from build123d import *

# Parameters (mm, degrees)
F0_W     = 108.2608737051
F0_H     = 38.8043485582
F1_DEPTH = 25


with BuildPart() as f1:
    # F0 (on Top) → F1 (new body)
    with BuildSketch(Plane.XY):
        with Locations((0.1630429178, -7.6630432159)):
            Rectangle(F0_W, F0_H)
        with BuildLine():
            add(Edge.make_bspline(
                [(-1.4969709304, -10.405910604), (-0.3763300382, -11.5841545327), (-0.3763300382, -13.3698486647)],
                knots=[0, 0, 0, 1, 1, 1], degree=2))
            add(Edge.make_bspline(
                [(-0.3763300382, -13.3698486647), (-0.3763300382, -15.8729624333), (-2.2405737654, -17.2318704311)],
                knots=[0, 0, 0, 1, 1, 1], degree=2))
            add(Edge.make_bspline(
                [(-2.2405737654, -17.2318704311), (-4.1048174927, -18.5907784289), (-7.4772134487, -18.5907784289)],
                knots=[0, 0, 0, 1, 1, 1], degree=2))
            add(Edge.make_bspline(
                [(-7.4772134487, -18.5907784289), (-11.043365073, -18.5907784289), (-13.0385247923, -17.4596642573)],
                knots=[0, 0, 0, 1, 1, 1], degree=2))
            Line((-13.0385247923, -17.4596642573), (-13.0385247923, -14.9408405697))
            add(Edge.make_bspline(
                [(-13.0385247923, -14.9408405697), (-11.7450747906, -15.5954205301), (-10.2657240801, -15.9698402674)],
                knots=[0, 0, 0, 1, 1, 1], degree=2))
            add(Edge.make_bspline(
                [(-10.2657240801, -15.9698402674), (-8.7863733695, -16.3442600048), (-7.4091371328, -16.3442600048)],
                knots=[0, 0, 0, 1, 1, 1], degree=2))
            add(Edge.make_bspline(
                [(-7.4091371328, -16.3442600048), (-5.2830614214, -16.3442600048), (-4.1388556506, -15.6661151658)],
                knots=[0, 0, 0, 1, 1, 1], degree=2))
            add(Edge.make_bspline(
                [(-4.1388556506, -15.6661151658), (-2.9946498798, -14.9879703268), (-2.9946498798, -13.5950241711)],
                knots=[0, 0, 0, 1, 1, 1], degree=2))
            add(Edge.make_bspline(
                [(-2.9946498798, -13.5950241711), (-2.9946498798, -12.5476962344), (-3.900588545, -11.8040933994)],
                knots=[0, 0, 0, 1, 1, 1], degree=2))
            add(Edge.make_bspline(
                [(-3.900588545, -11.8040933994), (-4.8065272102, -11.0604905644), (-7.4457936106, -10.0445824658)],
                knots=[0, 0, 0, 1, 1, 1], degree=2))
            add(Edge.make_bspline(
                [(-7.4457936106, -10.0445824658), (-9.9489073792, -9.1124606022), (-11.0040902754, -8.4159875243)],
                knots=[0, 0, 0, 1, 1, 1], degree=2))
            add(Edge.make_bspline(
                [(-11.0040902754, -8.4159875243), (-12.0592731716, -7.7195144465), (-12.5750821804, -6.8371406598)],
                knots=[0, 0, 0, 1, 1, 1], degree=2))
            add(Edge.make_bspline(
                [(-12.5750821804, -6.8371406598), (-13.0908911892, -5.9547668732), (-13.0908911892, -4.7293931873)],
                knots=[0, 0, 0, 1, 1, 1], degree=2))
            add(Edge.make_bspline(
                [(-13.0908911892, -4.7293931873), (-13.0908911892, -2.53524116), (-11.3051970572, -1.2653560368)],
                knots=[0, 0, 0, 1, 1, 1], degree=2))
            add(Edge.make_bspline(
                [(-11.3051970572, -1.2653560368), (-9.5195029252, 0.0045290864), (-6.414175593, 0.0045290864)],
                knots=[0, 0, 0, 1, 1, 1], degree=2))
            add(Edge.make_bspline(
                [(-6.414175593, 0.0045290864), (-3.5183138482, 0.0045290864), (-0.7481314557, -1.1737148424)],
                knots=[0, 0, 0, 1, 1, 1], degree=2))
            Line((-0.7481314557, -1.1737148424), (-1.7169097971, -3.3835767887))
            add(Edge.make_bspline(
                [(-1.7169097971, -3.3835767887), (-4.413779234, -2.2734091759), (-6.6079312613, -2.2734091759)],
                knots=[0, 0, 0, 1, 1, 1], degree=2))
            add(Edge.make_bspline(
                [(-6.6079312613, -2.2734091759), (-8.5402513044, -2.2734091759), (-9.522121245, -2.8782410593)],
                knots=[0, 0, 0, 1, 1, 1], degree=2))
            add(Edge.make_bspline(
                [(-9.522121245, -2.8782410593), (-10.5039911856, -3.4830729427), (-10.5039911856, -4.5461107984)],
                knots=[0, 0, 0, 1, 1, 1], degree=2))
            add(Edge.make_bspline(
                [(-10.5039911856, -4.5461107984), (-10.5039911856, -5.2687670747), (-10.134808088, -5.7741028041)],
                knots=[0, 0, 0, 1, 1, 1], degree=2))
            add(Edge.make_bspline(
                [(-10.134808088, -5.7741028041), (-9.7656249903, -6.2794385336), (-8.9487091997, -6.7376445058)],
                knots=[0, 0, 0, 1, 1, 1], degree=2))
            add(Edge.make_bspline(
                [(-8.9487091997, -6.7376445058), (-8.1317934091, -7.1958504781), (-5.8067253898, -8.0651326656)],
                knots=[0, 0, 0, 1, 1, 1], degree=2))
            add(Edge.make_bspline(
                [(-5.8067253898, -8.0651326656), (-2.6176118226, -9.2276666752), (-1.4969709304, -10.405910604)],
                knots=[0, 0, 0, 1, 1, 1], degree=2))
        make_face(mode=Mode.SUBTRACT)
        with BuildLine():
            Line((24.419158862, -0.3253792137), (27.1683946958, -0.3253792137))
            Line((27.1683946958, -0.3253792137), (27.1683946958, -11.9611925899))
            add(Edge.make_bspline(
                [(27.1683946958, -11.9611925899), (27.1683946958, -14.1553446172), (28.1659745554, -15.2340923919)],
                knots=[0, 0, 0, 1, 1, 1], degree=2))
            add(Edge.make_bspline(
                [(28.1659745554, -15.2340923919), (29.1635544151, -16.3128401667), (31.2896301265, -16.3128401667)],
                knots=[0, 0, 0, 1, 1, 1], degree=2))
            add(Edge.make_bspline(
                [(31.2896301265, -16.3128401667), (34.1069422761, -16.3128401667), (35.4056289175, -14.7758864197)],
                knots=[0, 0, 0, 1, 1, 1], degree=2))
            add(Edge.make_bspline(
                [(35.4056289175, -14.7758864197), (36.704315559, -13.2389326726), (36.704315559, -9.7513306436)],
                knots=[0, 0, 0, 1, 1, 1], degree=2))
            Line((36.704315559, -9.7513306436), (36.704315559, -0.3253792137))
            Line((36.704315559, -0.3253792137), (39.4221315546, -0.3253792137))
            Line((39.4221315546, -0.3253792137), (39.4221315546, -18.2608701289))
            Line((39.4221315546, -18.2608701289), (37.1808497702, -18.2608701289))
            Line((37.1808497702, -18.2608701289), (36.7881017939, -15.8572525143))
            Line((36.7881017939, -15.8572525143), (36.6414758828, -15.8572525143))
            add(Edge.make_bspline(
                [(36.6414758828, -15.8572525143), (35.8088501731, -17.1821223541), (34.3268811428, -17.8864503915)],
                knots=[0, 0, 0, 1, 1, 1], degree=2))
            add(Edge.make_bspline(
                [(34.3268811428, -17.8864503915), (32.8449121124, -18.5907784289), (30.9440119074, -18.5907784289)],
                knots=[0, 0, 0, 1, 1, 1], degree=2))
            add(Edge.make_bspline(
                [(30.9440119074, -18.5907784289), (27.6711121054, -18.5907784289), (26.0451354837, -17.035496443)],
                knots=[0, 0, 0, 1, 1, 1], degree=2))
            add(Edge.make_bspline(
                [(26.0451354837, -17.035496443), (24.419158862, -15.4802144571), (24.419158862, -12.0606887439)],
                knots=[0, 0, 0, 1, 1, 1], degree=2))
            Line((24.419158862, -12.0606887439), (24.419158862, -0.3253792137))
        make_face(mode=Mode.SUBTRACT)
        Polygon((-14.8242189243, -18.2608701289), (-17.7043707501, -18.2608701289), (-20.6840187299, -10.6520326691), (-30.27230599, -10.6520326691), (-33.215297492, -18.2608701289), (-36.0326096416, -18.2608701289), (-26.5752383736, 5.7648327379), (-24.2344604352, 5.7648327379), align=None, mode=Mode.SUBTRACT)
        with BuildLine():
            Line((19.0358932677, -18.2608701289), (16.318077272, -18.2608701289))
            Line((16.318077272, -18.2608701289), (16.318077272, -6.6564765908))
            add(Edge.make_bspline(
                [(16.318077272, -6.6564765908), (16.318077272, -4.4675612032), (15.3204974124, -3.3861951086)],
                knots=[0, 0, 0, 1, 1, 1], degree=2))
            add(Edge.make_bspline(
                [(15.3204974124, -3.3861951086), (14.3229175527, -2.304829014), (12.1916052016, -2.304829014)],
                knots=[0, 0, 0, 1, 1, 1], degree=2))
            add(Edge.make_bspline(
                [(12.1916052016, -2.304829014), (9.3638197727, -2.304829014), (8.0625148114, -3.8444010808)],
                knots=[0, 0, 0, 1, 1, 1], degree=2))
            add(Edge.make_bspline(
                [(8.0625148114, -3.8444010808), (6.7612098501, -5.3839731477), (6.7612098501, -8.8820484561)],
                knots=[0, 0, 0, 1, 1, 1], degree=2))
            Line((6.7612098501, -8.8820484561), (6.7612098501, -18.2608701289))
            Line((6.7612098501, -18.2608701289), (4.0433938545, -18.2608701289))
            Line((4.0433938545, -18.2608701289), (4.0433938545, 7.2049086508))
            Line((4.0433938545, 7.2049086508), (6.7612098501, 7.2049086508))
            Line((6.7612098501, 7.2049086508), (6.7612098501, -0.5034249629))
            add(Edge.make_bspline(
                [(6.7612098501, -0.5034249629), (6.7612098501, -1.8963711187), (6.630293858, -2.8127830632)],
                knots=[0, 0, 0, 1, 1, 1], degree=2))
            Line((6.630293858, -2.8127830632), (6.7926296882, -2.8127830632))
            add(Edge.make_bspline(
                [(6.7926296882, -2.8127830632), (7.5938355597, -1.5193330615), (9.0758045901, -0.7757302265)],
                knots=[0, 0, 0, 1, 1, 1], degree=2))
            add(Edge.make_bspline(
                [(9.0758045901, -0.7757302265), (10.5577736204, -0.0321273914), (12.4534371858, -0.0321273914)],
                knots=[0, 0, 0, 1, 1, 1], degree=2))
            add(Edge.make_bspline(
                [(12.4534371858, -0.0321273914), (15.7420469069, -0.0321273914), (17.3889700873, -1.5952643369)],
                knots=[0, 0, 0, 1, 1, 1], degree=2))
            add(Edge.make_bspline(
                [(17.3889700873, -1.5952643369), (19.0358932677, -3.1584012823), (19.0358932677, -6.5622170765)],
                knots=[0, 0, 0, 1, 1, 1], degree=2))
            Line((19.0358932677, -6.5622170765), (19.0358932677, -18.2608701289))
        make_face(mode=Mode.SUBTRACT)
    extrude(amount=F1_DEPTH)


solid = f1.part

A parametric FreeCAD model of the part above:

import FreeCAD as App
import Part
import Sketcher
from FreeCAD import Vector

doc = App.newDocument("Part")
body = doc.addObject("PartDesign::Body", "Body")

sketch1 = body.newObject("Sketcher::SketchObject", "Sketch")
sketch1.AttachmentSupport = (doc.getObject("XY_Plane"), [""])
sketch1.MapMode = "FlatFace"
sketch1.addGeometry([
    Part.LineSegment(Vector(-53.967394, 11.739131, 0), Vector(-53.967394, -27.065217, 0)),
    Part.LineSegment(Vector(-53.967394, -27.065217, 0), Vector(54.29348, -27.065217, 0)),
    Part.LineSegment(Vector(54.29348, -27.065217, 0), Vector(54.29348, 11.739131, 0)),
    Part.LineSegment(Vector(54.29348, 11.739131, 0), Vector(-53.967394, 11.739131, 0)),
    Part.LineSegment(Vector(-24.23446, 5.764833, 0), Vector(-14.824219, -18.26087, 0)),
    Part.LineSegment(Vector(-14.824219, -18.26087, 0), Vector(-17.704371, -18.26087, 0)),
    Part.LineSegment(Vector(-17.704371, -18.26087, 0), Vector(-20.684019, -10.652033, 0)),
    Part.LineSegment(Vector(-20.684019, -10.652033, 0), Vector(-30.272306, -10.652033, 0)),
    Part.LineSegment(Vector(-30.272306, -10.652033, 0), Vector(-33.215297, -18.26087, 0)),
    Part.LineSegment(Vector(-33.215297, -18.26087, 0), Vector(-36.03261, -18.26087, 0)),
    Part.LineSegment(Vector(-36.03261, -18.26087, 0), Vector(-26.575238, 5.764833, 0)),
    Part.LineSegment(Vector(-26.575238, 5.764833, 0), Vector(-24.23446, 5.764833, 0)),
    Part.BSplineCurve([Vector(-5.806725, -8.065133, 0), Vector(-2.617612, -9.227667, 0), Vector(-1.496971, -10.405911, 0)], [3, 3], [0, 1], False, 2, [1, 1, 1], False),
    Part.BSplineCurve([Vector(-1.496971, -10.405911, 0), Vector(-0.37633, -11.584155, 0), Vector(-0.37633, -15.872962, 0), Vector(-2.240574, -17.23187, 0)], [3, 1, 3], [0, 1, 2.401759531], False, 2, [1, 1, 1, 1], False),
    Part.BSplineCurve([Vector(-2.240574, -17.23187, 0), Vector(-4.104817, -18.590778, 0), Vector(-11.043365, -18.590778, 0), Vector(-13.038525, -17.459664, 0)], [3, 1, 3], [0, 1, 2.057453416], False, 2, [1, 1, 1, 1], False),
    Part.LineSegment(Vector(-13.038525, -17.459664, 0), Vector(-13.038525, -14.940841, 0)),
    Part.BSplineCurve([Vector(-13.038525, -14.940841, 0), Vector(-11.745075, -15.595421, 0), Vector(-10.265724, -15.96984, 0)], [3, 3], [0, 1], False, 2, [1, 1, 1], False),
    Part.BSplineCurve([Vector(-10.265724, -15.96984, 0), Vector(-8.786373, -16.34426, 0), Vector(-5.283061, -16.34426, 0), Vector(-2.99465, -14.98797, 0), Vector(-2.99465, -12.547696, 0), Vector(-4.806527, -11.060491, 0), Vector(-7.445794, -10.044582, 0)], [3, 1, 1, 1, 1, 3], [0, 1, 2.543726236, 4.087452471, 5.248148889, 6.408845307], False, 2, [1, 1, 1, 1, 1, 1, 1], False),
    Part.BSplineCurve([Vector(-7.445794, -10.044582, 0), Vector(-9.948907, -9.112461, 0), Vector(-11.00409, -8.415988, 0)], [3, 3], [0, 1], False, 2, [1, 1, 1], False),
    Part.BSplineCurve([Vector(-11.00409, -8.415988, 0), Vector(-12.059273, -7.719514, 0), Vector(-12.575082, -6.837141, 0)], [3, 3], [0, 1], False, 2, [1, 1, 1], False),
    Part.BSplineCurve([Vector(-12.575082, -6.837141, 0), Vector(-13.090891, -5.954767, 0), Vector(-13.090891, -2.535241, 0), Vector(-9.519503, 0.004529, 0), Vector(-3.518314, 0.004529, 0), Vector(-0.748131, -1.173715, 0)], [3, 1, 1, 1, 3], [0, 1, 2.790598291, 4.581196581, 6.251012525], False, 2, [1, 1, 1, 1, 1, 1], False),
    Part.LineSegment(Vector(-0.748131, -1.173715, 0), Vector(-1.71691, -3.383577, 0)),
    Part.BSplineCurve([Vector(-1.71691, -3.383577, 0), Vector(-4.413779, -2.273409, 0), Vector(-8.540251, -2.273409, 0), Vector(-10.503991, -3.483073, 0), Vector(-10.503991, -5.268767, 0), Vector(-10.134808, -5.774103, 0)], [3, 1, 1, 1, 3], [0, 1, 1.880668258, 2.761336515, 3.3600174], False, 2, [1, 1, 1, 1, 1, 1], False),
    Part.BSplineCurve([Vector(-10.134808, -5.774103, 0), Vector(-9.765625, -6.279439, 0), Vector(-8.948709, -6.737645, 0)], [3, 3], [0, 1], False, 2, [1, 1, 1], False),
    Part.BSplineCurve([Vector(-8.948709, -6.737645, 0), Vector(-8.131793, -7.19585, 0), Vector(-5.806725, -8.065133, 0)], [3, 3], [0, 1], False, 2, [1, 1, 1], False),
    Part.LineSegment(Vector(24.419159, -12.060689, 0), Vector(24.419159, -0.325379, 0)),
    Part.LineSegment(Vector(24.419159, -0.325379, 0), Vector(27.168395, -0.325379, 0)),
    Part.LineSegment(Vector(27.168395, -0.325379, 0), Vector(27.168395, -11.961193, 0)),
    Part.BSplineCurve([Vector(27.168395, -11.961193, 0), Vector(27.168395, -14.155345, 0), Vector(28.165975, -15.234092, 0)], [3, 3], [0, 1], False, 2, [1, 1, 1], False),
    Part.BSplineCurve([Vector(28.165975, -15.234092, 0), Vector(29.163554, -16.31284, 0), Vector(34.106942, -16.31284, 0), Vector(35.405629, -14.775886, 0)], [3, 1, 3], [0, 1, 2.325123153], False, 2, [1, 1, 1, 1], False),
    Part.BSplineCurve([Vector(35.405629, -14.775886, 0), Vector(36.704316, -13.238933, 0), Vector(36.704316, -9.751331, 0)], [3, 3], [0, 1], False, 2, [1, 1, 1], False),
    Part.LineSegment(Vector(36.704316, -9.751331, 0), Vector(36.704316, -0.325379, 0)),
    Part.LineSegment(Vector(36.704316, -0.325379, 0), Vector(39.422132, -0.325379, 0)),
    Part.LineSegment(Vector(39.422132, -0.325379, 0), Vector(39.422132, -18.26087, 0)),
    Part.LineSegment(Vector(39.422132, -18.26087, 0), Vector(37.18085, -18.26087, 0)),
    Part.LineSegment(Vector(37.18085, -18.26087, 0), Vector(36.788102, -15.857253, 0)),
    Part.LineSegment(Vector(36.788102, -15.857253, 0), Vector(36.641476, -15.857253, 0)),
    Part.BSplineCurve([Vector(36.641476, -15.857253, 0), Vector(35.80885, -17.182122, 0), Vector(34.326881, -17.88645, 0)], [3, 3], [0, 1], False, 2, [1, 1, 1], False),
    Part.BSplineCurve([Vector(34.326881, -17.88645, 0), Vector(32.844912, -18.590778, 0), Vector(27.671112, -18.590778, 0), Vector(24.419159, -15.480214, 0), Vector(24.419159, -12.060689, 0)], [3, 1, 1, 3], [0, 1, 2.721763085, 4.443526171], False, 2, [1, 1, 1, 1, 1], False),
    Part.LineSegment(Vector(19.035893, -6.562217, 0), Vector(19.035893, -18.26087, 0)),
    Part.LineSegment(Vector(19.035893, -18.26087, 0), Vector(16.318077, -18.26087, 0)),
    Part.LineSegment(Vector(16.318077, -18.26087, 0), Vector(16.318077, -6.656477, 0)),
    Part.BSplineCurve([Vector(16.318077, -6.656477, 0), Vector(16.318077, -4.467561, 0), Vector(15.320497, -3.386195, 0)], [3, 3], [0, 1], False, 2, [1, 1, 1], False),
    Part.BSplineCurve([Vector(15.320497, -3.386195, 0), Vector(14.322918, -2.304829, 0), Vector(9.36382, -2.304829, 0), Vector(8.062515, -3.844401, 0)], [3, 1, 3], [0, 1, 2.326781327], False, 2, [1, 1, 1, 1], False),
    Part.BSplineCurve([Vector(8.062515, -3.844401, 0), Vector(6.76121, -5.383973, 0), Vector(6.76121, -8.882048, 0)], [3, 3], [0, 1], False, 2, [1, 1, 1], False),
    Part.LineSegment(Vector(6.76121, -8.882048, 0), Vector(6.76121, -18.26087, 0)),
    Part.LineSegment(Vector(6.76121, -18.26087, 0), Vector(4.043394, -18.26087, 0)),
    Part.LineSegment(Vector(4.043394, -18.26087, 0), Vector(4.043394, 7.204909, 0)),
    Part.LineSegment(Vector(4.043394, 7.204909, 0), Vector(6.76121, 7.204909, 0)),
    Part.LineSegment(Vector(6.76121, 7.204909, 0), Vector(6.76121, -0.503425, 0)),
    Part.BSplineCurve([Vector(6.76121, -0.503425, 0), Vector(6.76121, -1.896371, 0), Vector(6.630294, -2.812783, 0)], [3, 3], [0, 1], False, 2, [1, 1, 1], False),
    Part.LineSegment(Vector(6.630294, -2.812783, 0), Vector(6.79263, -2.812783, 0)),
    Part.BSplineCurve([Vector(6.79263, -2.812783, 0), Vector(7.593836, -1.519333, 0), Vector(9.075805, -0.77573, 0)], [3, 3], [0, 1], False, 2, [1, 1, 1], False),
    Part.BSplineCurve([Vector(9.075805, -0.77573, 0), Vector(10.557774, -0.032127, 0), Vector(15.742047, -0.032127, 0), Vector(17.38897, -1.595264, 0)], [3, 1, 3], [0, 1, 2.73480663], False, 2, [1, 1, 1, 1], False),
    Part.BSplineCurve([Vector(17.38897, -1.595264, 0), Vector(19.035893, -3.158401, 0), Vector(19.035893, -6.562217, 0)], [3, 3], [0, 1], False, 2, [1, 1, 1], False),
], False)
sketch1.addConstraint([
    Sketcher.Constraint("Block", 12),
    Sketcher.Constraint("Block", 13),
    Sketcher.Constraint("Block", 14),
    Sketcher.Constraint("Block", 16),
    Sketcher.Constraint("Block", 17),
    Sketcher.Constraint("Block", 18),
    Sketcher.Constraint("Block", 19),
    Sketcher.Constraint("Block", 20),
    Sketcher.Constraint("Block", 22),
    Sketcher.Constraint("Block", 23),
    Sketcher.Constraint("Block", 24),
    Sketcher.Constraint("Block", 28),
    Sketcher.Constraint("Block", 29),
    Sketcher.Constraint("Block", 30),
    Sketcher.Constraint("Block", 37),
    Sketcher.Constraint("Block", 38),
    Sketcher.Constraint("Block", 42),
    Sketcher.Constraint("Block", 43),
    Sketcher.Constraint("Block", 44),
    Sketcher.Constraint("Block", 50),
    Sketcher.Constraint("Block", 52),
    Sketcher.Constraint("Block", 53),
    Sketcher.Constraint("Block", 54),
    Sketcher.Constraint("Coincident", 0, 2, 1, 1),
    Sketcher.Constraint("Coincident", 1, 2, 2, 1),
    Sketcher.Constraint("Coincident", 2, 2, 3, 1),
    Sketcher.Constraint("Coincident", 3, 2, 0, 1),
    Sketcher.Constraint("Coincident", 4, 2, 5, 1),
    Sketcher.Constraint("Coincident", 5, 2, 6, 1),
    Sketcher.Constraint("Coincident", 6, 2, 7, 1),
    Sketcher.Constraint("Coincident", 7, 2, 8, 1),
    Sketcher.Constraint("Coincident", 8, 2, 9, 1),
    Sketcher.Constraint("Coincident", 9, 2, 10, 1),
    Sketcher.Constraint("Coincident", 10, 2, 11, 1),
    Sketcher.Constraint("Coincident", 11, 2, 4, 1),
    Sketcher.Constraint("Coincident", 14, 2, 15, 1),
    Sketcher.Constraint("Coincident", 15, 2, 16, 1),
    Sketcher.Constraint("Coincident", 20, 2, 21, 1),
    Sketcher.Constraint("Coincident", 21, 2, 22, 1),
    Sketcher.Constraint("Coincident", 25, 2, 26, 1),
    Sketcher.Constraint("Coincident", 26, 2, 27, 1),
    Sketcher.Constraint("Coincident", 27, 2, 28, 1),
    Sketcher.Constraint("Coincident", 30, 2, 31, 1),
    Sketcher.Constraint("Coincident", 31, 2, 32, 1),
    Sketcher.Constraint("Coincident", 32, 2, 33, 1),
    Sketcher.Constraint("Coincident", 33, 2, 34, 1),
    Sketcher.Constraint("Coincident", 34, 2, 35, 1),
    Sketcher.Constraint("Coincident", 35, 2, 36, 1),
    Sketcher.Constraint("Coincident", 36, 2, 37, 1),
    Sketcher.Constraint("Coincident", 38, 2, 25, 1),
    Sketcher.Constraint("Coincident", 39, 2, 40, 1),
    Sketcher.Constraint("Coincident", 40, 2, 41, 1),
    Sketcher.Constraint("Coincident", 41, 2, 42, 1),
    Sketcher.Constraint("Coincident", 44, 2, 45, 1),
    Sketcher.Constraint("Coincident", 45, 2, 46, 1),
    Sketcher.Constraint("Coincident", 46, 2, 47, 1),
    Sketcher.Constraint("Coincident", 47, 2, 48, 1),
    Sketcher.Constraint("Coincident", 48, 2, 49, 1),
    Sketcher.Constraint("Coincident", 49, 2, 50, 1),
    Sketcher.Constraint("Coincident", 50, 2, 51, 1),
    Sketcher.Constraint("Coincident", 51, 2, 52, 1),
    Sketcher.Constraint("Coincident", 54, 2, 39, 1),
    Sketcher.Constraint("Vertical", 0),
    Sketcher.Constraint("Horizontal", 1),
    Sketcher.Constraint("Vertical", 2),
    Sketcher.Constraint("Horizontal", 3),
    Sketcher.Constraint("Horizontal", 5),
    Sketcher.Constraint("Horizontal", 7),
    Sketcher.Constraint("Horizontal", 9),
    Sketcher.Constraint("Horizontal", 11),
    Sketcher.Constraint("Vertical", 25),
    Sketcher.Constraint("Horizontal", 26),
    Sketcher.Constraint("Vertical", 27),
    Sketcher.Constraint("Vertical", 31),
    Sketcher.Constraint("Horizontal", 32),
    Sketcher.Constraint("Vertical", 33),
    Sketcher.Constraint("Horizontal", 34),
    Sketcher.Constraint("Horizontal", 36),
    Sketcher.Constraint("Vertical", 39),
    Sketcher.Constraint("Horizontal", 40),
    Sketcher.Constraint("Vertical", 41),
    Sketcher.Constraint("Vertical", 45),
    Sketcher.Constraint("Horizontal", 46),
    Sketcher.Constraint("Vertical", 47),
    Sketcher.Constraint("Horizontal", 48),
    Sketcher.Constraint("Vertical", 49),
    Sketcher.Constraint("DistanceY", 4, 2, 3, 2, 30.000001),
    Sketcher.Constraint("DistanceX", 47, 2, 26, 2, 23.125001),
    Sketcher.Constraint("DistanceX", 5, 2, 5, 1, 2.880152),
    Sketcher.Constraint("DistanceX", 34, 2, 34, 1, 2.241282),
    Sketcher.Constraint("DistanceY", 0, 2, 0, 1, 38.804349),
    Sketcher.Constraint("DistanceY", 25, 1, 25, 2, 11.73531),
    Sketcher.Constraint("DistanceY", 31, 1, 31, 2, 9.425951),
    Sketcher.Constraint("DistanceY", 33, 2, 33, 1, 17.935491),
    Sketcher.Constraint("DistanceY", 45, 2, 45, 1, 9.378822),
    Sketcher.Constraint("DistanceY", 47, 1, 47, 2, 25.465779),
    Sketcher.Constraint("DistanceX", -1, 1, 35, 2, 36.788102),
    Sketcher.Constraint("DistanceX", 4, 2, 1, 2, 69.117699),
    Sketcher.Constraint("DistanceX", 6, 2, 4, 2, 5.8598),
    Sketcher.Constraint("Distance", 4, 25.80285),
    Sketcher.Constraint("Distance", 8, 8.158162),
    Sketcher.Constraint("DistanceX", 1, 1, 1, 2, 108.260874),
    Sketcher.Constraint("DistanceX", 7, 2, 7, 1, 9.588287),
    Sketcher.Constraint("DistanceX", 9, 2, 9, 1, 2.817312),
    Sketcher.Constraint("DistanceX", 11, 1, 11, 2, 2.340778),
    Sketcher.Constraint("DistanceX", 32, 1, 32, 2, 2.717816),
    Sketcher.Constraint("DistanceY", 39, 2, 39, 1, 11.698653),
    Sketcher.Constraint("DistanceX", -1, 1, 1, 2, 54.29348),
    Sketcher.Constraint("DistanceY", -1, 1, 2, 2, 11.739131),
    Sketcher.Constraint("DistanceY", 8, 2, -1, 1, 18.26087),
    Sketcher.Constraint("DistanceX", 9, 2, -1, 1, 36.03261),
    Sketcher.Constraint("DistanceX", 10, 2, -1, 1, 26.575238),
])
pad1 = body.newObject("PartDesign::Pad", "Pad")
pad1.Profile = sketch1
pad1.Length = 25

doc.recompute()
